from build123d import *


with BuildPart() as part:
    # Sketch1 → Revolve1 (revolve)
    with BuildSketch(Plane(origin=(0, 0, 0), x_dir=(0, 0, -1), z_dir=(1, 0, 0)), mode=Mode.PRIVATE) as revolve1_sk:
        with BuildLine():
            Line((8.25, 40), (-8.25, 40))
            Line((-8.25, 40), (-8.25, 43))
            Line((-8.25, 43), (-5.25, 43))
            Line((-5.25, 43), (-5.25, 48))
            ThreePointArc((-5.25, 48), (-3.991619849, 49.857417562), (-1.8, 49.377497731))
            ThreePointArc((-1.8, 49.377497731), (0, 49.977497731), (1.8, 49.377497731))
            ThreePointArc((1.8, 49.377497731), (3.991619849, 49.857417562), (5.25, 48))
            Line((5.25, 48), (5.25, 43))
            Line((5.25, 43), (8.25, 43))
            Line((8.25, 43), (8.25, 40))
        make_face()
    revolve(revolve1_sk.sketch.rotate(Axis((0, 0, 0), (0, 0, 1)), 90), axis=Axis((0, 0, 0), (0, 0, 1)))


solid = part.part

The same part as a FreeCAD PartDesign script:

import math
import FreeCAD as App
import Part
import Sketcher
from FreeCAD import Vector

doc = App.newDocument("Part")
params = doc.addObject("Spreadsheet::Sheet", "Params")
for row, (alias, value) in enumerate([
    ("sketch1_radius", "2 mm"),
    ("sketch1_radius2", "3 mm"),
    ("sketch1_width", "3 mm"),
    ("sketch1_width2", "5 mm"),
    ("sketch1_height", "16.5 mm"),
    ("revolution_angle", "360 deg"),
], start=1):
    params.set(f"A{row}", alias)
    params.set(f"B{row}", "=" + value)
    params.setAlias(f"B{row}", alias)

body = doc.addObject("PartDesign::Body", "Body")

# Sketch on YZ plane
sketch1 = doc.addObject("Sketcher::SketchObject", "Sketch")
body.addObject(sketch1)
sketch1.AttachmentSupport = (doc.YZ_Plane, [""])
sketch1.MapMode = "FlatFace"
sketch1.addGeometry([
    Part.LineSegment(Vector(40, 8.2, 0), Vector(40, -8.2, 0)),  # 0
    Part.LineSegment(Vector(40, -8.2, 0), Vector(43, -8.2, 0)),  # 1
    Part.LineSegment(Vector(43, -8.2, 0), Vector(43, -5.2, 0)),  # 2
    Part.LineSegment(Vector(43, -5.2, 0), Vector(48, -5.2, 0)),  # 3
    Part.ArcOfCircle(Part.Circle(Vector(48, -3.2, 0), Vector(0, 0, 1), 2), math.radians(-90), math.radians(46)),  # 4
    Part.ArcOfCircle(Part.Circle(Vector(47, 0, 0), Vector(0, 0, 1), 3), math.radians(-37), math.radians(37)),  # 5
    Part.ArcOfCircle(Part.Circle(Vector(48, 3.2, 0), Vector(0, 0, 1), 2), math.radians(-46), math.radians(90)),  # 6
    Part.LineSegment(Vector(48, 5.2, 0), Vector(43, 5.2, 0)),  # 7
    Part.LineSegment(Vector(43, 5.2, 0), Vector(43, 8.2, 0)),  # 8
    Part.LineSegment(Vector(43, 8.2, 0), Vector(40, 8.2, 0)),  # 9
], False)
sketch1.addConstraint([
    Sketcher.Constraint("Coincident", 0, 2, 1, 1),
    Sketcher.Constraint("Coincident", 1, 2, 2, 1),
    Sketcher.Constraint("Coincident", 2, 2, 3, 1),
    Sketcher.Constraint("Tangent", 3, 2, 4, 1),
    Sketcher.Constraint("Coincident", 4, 2, 5, 1),
    Sketcher.Constraint("Coincident", 5, 2, 6, 1),
    Sketcher.Constraint("Tangent", 6, 2, 7, 1),
    Sketcher.Constraint("Coincident", 7, 2, 8, 1),
    Sketcher.Constraint("Coincident", 8, 2, 9, 1),
    Sketcher.Constraint("Coincident", 9, 2, 0, 1),
    Sketcher.Constraint("Vertical", 0),
    Sketcher.Constraint("Horizontal", 1),
    Sketcher.Constraint("Vertical", 2),
    Sketcher.Constraint("Horizontal", 3),
    Sketcher.Constraint("Horizontal", 7),
    Sketcher.Constraint("Vertical", 8),
    Sketcher.Constraint("Horizontal", 9),
    Sketcher.Constraint("Equal", 4, 6),
    Sketcher.Constraint("Symmetric", 4, 3, 6, 3, -1),
    Sketcher.Constraint("Symmetric", 1, 2, 8, 2, -1),
    Sketcher.Constraint("PointOnObject", 5, 3, -1),
    Sketcher.Constraint("Equal", 9, 2),
    Sketcher.Constraint("Radius", 4, 2.0),
    Sketcher.Constraint("Radius", 5, 3.0),
    Sketcher.Constraint("DistanceX", 1, 1, 1, 2, 3.0),
    Sketcher.Constraint("DistanceX", 3, 1, 3, 2, 5.0),
    Sketcher.Constraint("DistanceY", 0, 2, 0, 1, 16.5),
    Sketcher.Constraint("DistanceX", -1, 1, 4, 3, 48.0),
    Sketcher.Constraint("DistanceY", 4, 2, -1, 1, 1.8),
])
sketch1.setExpression("Constraints[22]", "Params.sketch1_radius")
sketch1.setExpression("Constraints[23]", "Params.sketch1_radius2")
sketch1.setExpression("Constraints[24]", "Params.sketch1_width")
sketch1.setExpression("Constraints[25]", "Params.sketch1_width2")
sketch1.setExpression("Constraints[26]", "Params.sketch1_height")
revolution = doc.addObject("PartDesign::Revolution", "Revolution")
body.addObject(revolution)
revolution.Profile = sketch1
revolution.ReferenceAxis = (sketch1, ["V_Axis"])
revolution.setExpression("Angle", "Params.revolution_angle")

doc.recompute()
